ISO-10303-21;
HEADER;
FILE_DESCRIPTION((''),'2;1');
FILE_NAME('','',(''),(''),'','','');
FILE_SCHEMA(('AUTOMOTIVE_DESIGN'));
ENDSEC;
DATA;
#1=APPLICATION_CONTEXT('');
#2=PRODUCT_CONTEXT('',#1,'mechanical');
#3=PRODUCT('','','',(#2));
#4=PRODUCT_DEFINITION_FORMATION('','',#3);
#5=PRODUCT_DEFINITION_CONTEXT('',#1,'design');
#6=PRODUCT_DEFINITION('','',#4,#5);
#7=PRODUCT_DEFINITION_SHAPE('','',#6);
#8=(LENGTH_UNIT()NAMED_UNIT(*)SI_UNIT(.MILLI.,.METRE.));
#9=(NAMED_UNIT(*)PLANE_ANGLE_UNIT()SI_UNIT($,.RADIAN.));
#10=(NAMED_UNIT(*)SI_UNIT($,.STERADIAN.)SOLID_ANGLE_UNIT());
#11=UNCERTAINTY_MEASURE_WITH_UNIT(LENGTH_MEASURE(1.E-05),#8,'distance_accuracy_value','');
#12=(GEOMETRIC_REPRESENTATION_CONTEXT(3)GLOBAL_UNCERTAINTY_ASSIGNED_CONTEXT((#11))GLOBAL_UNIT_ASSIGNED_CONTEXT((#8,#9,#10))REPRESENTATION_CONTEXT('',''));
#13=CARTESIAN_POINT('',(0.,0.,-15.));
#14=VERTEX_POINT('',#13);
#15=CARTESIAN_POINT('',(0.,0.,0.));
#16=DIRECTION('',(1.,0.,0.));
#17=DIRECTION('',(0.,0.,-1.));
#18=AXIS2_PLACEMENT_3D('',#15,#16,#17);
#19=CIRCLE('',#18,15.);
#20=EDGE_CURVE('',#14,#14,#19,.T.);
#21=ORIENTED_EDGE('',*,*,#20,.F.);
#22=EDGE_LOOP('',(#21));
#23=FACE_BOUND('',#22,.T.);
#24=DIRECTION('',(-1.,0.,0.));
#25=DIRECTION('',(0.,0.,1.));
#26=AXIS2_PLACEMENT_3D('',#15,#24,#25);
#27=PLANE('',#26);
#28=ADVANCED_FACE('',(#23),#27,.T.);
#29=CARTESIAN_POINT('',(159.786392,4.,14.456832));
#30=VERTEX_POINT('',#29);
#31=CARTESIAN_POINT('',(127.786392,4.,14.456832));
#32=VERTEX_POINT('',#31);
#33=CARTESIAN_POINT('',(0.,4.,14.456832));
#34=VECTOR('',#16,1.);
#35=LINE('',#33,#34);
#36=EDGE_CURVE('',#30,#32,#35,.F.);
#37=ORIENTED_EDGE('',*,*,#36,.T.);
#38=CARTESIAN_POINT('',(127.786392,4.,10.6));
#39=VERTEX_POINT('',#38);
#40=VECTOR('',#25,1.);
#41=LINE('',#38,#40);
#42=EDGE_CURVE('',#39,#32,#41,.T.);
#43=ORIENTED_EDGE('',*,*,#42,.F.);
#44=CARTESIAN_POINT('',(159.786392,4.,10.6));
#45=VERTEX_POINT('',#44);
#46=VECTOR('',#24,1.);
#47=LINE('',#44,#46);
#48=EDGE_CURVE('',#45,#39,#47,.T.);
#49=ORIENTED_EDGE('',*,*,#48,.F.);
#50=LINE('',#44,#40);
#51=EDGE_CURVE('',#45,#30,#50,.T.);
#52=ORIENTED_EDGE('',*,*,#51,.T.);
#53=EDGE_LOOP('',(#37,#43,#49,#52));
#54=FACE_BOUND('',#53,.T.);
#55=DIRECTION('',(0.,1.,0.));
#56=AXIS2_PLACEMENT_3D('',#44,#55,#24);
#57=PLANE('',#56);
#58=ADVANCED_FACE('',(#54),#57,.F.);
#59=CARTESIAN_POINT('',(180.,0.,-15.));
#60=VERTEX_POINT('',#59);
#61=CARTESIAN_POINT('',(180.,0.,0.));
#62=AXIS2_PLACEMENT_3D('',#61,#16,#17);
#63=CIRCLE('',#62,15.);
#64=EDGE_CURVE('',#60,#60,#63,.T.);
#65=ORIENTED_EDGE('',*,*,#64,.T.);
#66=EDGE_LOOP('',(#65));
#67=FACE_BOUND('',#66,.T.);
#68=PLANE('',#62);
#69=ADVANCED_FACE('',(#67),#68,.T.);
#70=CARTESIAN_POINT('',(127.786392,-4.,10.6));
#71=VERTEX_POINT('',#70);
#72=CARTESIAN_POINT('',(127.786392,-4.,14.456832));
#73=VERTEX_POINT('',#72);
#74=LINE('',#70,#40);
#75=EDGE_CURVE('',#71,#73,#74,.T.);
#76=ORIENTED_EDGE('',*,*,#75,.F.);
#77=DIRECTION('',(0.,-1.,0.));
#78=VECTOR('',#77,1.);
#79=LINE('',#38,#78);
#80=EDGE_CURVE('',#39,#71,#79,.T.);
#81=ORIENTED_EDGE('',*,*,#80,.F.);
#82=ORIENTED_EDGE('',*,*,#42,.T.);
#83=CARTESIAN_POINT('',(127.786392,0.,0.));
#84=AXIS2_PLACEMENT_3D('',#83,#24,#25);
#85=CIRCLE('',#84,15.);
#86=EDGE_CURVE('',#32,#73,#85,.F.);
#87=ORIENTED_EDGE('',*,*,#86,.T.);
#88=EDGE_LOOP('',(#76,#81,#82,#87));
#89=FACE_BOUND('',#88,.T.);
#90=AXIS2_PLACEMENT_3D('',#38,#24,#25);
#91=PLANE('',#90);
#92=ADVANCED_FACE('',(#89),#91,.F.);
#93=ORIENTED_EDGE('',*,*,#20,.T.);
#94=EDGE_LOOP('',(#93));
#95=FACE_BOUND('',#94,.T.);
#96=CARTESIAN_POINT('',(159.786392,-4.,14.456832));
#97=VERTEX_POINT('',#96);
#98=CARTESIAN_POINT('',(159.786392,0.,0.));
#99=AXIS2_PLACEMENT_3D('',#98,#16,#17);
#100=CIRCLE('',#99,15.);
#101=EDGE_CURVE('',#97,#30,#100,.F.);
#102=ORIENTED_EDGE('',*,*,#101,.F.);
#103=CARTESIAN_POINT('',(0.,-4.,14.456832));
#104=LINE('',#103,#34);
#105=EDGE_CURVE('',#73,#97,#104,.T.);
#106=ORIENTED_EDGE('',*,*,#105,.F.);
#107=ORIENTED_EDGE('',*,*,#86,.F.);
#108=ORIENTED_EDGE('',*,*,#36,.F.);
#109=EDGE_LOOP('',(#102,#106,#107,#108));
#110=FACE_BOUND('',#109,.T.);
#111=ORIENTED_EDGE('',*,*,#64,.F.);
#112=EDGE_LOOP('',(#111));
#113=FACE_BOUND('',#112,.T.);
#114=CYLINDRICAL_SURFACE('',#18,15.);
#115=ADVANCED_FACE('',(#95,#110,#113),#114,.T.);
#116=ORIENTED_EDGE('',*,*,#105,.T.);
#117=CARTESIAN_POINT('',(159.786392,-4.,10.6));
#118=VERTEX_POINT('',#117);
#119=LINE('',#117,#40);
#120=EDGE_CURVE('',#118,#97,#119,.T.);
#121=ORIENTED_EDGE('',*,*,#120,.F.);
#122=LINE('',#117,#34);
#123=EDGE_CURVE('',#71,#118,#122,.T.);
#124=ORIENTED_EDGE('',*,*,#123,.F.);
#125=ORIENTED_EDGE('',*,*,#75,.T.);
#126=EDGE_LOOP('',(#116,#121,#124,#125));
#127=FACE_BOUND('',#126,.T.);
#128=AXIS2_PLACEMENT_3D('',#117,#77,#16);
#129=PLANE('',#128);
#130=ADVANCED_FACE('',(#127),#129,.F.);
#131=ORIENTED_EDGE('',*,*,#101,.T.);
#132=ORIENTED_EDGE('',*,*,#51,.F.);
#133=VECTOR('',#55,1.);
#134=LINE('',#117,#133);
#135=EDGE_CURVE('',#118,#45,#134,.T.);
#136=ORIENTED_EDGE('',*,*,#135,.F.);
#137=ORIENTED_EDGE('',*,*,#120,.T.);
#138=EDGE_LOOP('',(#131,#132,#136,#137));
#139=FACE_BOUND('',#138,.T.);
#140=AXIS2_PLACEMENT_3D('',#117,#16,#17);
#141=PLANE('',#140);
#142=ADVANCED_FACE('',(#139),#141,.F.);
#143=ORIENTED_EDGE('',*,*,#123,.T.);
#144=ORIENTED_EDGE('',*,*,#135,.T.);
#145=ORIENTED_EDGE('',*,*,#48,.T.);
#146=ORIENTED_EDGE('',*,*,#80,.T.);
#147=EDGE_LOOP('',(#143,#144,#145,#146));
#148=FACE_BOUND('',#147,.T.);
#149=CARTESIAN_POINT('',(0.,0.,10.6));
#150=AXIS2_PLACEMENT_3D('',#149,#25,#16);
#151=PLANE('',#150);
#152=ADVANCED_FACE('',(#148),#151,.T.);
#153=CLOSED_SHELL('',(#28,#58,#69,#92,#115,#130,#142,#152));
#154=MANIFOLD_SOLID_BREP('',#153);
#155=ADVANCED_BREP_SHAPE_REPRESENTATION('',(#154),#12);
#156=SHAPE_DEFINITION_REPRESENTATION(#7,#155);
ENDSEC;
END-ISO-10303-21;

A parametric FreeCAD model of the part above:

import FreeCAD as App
import Part
import Sketcher
from FreeCAD import Vector
Q = App.Units.Quantity

doc = App.newDocument("Part")
body = doc.addObject("PartDesign::Body", "Body")

sketch1 = doc.addObject("Sketcher::SketchObject", "Sketch")
body.addObject(sketch1)
sketch1.AttachmentSupport = (doc.XY_Plane, [""])
sketch1.MapMode = "FlatFace"
sketch1.addGeometry([
    Part.LineSegment(Vector(0, 15, 0), Vector(0, 0, 0)),
    Part.LineSegment(Vector(0, 0, 0), Vector(180, 0, 0)),
    Part.LineSegment(Vector(180, 0, 0), Vector(180, 15, 0)),
    Part.LineSegment(Vector(180, 15, 0), Vector(0, 15, 0)),
], False)
sketch1.addConstraint([
    Sketcher.Constraint("Coincident", 0, 2, 1, 1),
    Sketcher.Constraint("Coincident", 1, 2, 2, 1),
    Sketcher.Constraint("Coincident", 2, 2, 3, 1),
    Sketcher.Constraint("Coincident", 3, 2, 0, 1),
    Sketcher.Constraint("Vertical", 0),
    Sketcher.Constraint("Horizontal", 1),
    Sketcher.Constraint("Vertical", 2),
    Sketcher.Constraint("Horizontal", 3),
    Sketcher.Constraint("Coincident", 0, 2, -1, 1),
    Sketcher.Constraint("DistanceX", 1, 1, 1, 2, Q("180 mm")),
    Sketcher.Constraint("DistanceY", 0, 2, 0, 1, Q("15 mm")),
])
revolution = doc.addObject("PartDesign::Revolution", "Revolution")
body.addObject(revolution)
revolution.Profile = sketch1
revolution.ReferenceAxis = (sketch1, ["H_Axis"])
revolution.Angle = 360

sketch2 = doc.addObject("Sketcher::SketchObject", "Sketch001")
body.addObject(sketch2)
sketch2.AttachmentSupport = (doc.XY_Plane, [""])
sketch2.MapMode = "FlatFace"
sketch2.AttachmentOffset = App.Placement(Vector(0, 0, 15), App.Rotation())
sketch2.addGeometry([
    Part.LineSegment(Vector(128, 4, 0), Vector(128, -4, 0)),
    Part.LineSegment(Vector(128, -4, 0), Vector(160, -4, 0)),
    Part.LineSegment(Vector(160, -4, 0), Vector(160, 4, 0)),
    Part.LineSegment(Vector(160, 4, 0), Vector(128, 4, 0)),
], False)
sketch2.addConstraint([
    Sketcher.Constraint("Coincident", 0, 2, 1, 1),
    Sketcher.Constraint("Coincident", 1, 2, 2, 1),
    Sketcher.Constraint("Coincident", 2, 2, 3, 1),
    Sketcher.Constraint("Coincident", 3, 2, 0, 1),
    Sketcher.Constraint("Vertical", 0),
    Sketcher.Constraint("Horizontal", 1),
    Sketcher.Constraint("Vertical", 2),
    Sketcher.Constraint("Horizontal", 3),
    Sketcher.Constraint("DistanceX", 1, 1, 1, 2, Q("32 mm")),
    Sketcher.Constraint("DistanceY", 0, 2, 0, 1, Q("8 mm")),
    Sketcher.Constraint("DistanceY", 0, 2, -1, 1, Q("4 mm")),
    Sketcher.Constraint("DistanceX", -1, 1, 0, 2, Q("127.786392 mm")),
])
pocket1 = doc.addObject("PartDesign::Pocket", "Pocket")
body.addObject(pocket1)
pocket1.Profile = sketch2
pocket1.Length = 4.4

doc.recompute()
